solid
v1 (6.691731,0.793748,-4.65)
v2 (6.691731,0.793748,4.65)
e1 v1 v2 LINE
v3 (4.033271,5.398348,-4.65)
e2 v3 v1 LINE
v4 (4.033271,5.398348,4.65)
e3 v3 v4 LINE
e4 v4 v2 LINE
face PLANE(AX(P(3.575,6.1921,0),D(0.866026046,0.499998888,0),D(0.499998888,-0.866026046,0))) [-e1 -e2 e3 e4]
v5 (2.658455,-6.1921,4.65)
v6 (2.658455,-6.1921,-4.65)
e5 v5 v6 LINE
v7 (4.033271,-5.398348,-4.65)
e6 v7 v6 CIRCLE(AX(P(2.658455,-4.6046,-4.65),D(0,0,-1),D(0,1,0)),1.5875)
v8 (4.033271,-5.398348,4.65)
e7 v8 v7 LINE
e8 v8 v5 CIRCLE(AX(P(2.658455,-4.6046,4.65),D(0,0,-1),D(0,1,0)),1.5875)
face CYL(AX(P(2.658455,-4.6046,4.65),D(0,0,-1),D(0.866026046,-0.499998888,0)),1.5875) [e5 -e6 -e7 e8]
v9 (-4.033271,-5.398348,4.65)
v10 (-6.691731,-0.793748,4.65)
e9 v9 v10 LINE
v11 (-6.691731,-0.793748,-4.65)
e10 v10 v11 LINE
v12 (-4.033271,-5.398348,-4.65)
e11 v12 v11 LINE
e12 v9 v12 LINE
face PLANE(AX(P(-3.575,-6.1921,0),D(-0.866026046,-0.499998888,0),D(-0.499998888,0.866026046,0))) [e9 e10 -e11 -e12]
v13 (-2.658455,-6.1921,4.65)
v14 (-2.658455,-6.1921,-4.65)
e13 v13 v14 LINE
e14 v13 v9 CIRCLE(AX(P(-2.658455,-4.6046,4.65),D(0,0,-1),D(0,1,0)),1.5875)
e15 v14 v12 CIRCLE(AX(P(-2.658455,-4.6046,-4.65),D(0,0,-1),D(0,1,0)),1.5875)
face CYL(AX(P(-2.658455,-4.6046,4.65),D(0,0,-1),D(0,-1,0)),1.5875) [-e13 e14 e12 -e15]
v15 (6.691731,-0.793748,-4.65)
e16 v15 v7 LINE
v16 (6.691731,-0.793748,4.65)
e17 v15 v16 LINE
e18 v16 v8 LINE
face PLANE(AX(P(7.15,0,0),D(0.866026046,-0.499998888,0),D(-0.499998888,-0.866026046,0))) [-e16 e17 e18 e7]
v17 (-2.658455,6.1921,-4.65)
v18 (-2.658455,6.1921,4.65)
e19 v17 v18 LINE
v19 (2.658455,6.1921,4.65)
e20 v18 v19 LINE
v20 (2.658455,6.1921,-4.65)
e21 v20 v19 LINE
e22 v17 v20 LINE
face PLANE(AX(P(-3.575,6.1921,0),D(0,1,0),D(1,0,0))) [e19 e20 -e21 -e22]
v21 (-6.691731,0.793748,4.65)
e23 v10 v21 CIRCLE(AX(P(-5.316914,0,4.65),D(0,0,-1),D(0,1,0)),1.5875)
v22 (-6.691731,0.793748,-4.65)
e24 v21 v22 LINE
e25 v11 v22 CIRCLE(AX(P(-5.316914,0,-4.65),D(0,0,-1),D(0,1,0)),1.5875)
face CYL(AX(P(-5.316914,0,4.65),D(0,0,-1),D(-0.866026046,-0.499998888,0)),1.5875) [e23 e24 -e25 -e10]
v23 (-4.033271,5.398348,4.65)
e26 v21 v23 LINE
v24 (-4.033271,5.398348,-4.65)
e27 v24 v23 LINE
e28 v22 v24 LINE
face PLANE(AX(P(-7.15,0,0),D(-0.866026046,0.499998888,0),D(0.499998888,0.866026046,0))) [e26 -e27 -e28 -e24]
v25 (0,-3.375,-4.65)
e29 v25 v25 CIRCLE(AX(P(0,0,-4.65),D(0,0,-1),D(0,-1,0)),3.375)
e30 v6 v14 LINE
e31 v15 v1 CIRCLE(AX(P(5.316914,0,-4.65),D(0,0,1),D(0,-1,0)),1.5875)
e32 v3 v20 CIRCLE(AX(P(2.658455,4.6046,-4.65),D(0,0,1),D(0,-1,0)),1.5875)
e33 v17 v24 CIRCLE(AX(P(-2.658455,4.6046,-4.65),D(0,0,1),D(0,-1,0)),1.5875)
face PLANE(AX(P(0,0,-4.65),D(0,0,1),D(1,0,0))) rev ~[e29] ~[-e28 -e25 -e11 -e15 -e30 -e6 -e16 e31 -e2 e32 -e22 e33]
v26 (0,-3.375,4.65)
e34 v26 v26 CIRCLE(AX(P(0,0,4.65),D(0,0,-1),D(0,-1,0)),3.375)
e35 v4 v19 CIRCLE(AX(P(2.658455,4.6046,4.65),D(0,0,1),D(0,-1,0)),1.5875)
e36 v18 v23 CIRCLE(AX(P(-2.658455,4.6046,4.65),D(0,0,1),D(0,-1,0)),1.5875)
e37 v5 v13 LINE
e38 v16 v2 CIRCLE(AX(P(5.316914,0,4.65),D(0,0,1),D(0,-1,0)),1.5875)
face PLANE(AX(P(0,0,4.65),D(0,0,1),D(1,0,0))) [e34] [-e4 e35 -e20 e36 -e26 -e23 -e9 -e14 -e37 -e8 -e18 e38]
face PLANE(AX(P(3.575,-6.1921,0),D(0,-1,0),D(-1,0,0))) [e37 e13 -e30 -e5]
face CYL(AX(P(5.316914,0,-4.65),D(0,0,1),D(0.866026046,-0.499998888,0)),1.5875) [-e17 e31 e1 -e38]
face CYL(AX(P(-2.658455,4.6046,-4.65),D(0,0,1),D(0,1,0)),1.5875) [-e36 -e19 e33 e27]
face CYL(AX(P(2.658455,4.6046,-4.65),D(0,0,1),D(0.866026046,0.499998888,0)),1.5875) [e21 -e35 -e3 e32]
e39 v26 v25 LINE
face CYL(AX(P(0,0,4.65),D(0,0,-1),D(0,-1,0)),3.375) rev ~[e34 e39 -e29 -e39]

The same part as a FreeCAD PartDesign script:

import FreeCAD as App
import Part
import Sketcher
from FreeCAD import Vector
Q = App.Units.Quantity


def edges_at(feature, points):
    """Names of the edges that pass closest to the given points."""
    edges = feature.Shape.Edges
    near = lambda p: min(range(len(edges)), key=lambda i: edges[i].distToShape(Part.Vertex(*p))[0])
    return sorted({f"Edge{near(p) + 1}" for p in points})

doc = App.newDocument("Part")
body = doc.addObject("PartDesign::Body", "Body")

# Sketch on XY plane
sketch1 = body.newObject("Sketcher::SketchObject", "Sketch")
sketch1.AttachmentSupport = (doc.getObject("XY_Plane"), [""])
sketch1.MapMode = "FlatFace"
sketch1.addGeometry([
    Part.LineSegment(Vector(4, -6, 0), Vector(7, 0, 0)),  # 0
    Part.LineSegment(Vector(7, 0, 0), Vector(4, 6, 0)),  # 1
    Part.LineSegment(Vector(4, 6, 0), Vector(-4, 6, 0)),  # 2
    Part.LineSegment(Vector(-4, 6, 0), Vector(-7, 0, 0)),  # 3
    Part.LineSegment(Vector(-7, 0, 0), Vector(-4, -6, 0)),  # 4
    Part.LineSegment(Vector(-4, -6, 0), Vector(4, -6, 0)),  # 5
], False)
sketch1.addConstraint([
    Sketcher.Constraint("Coincident", 0, 2, 1, 1),
    Sketcher.Constraint("Coincident", 1, 2, 2, 1),
    Sketcher.Constraint("Coincident", 2, 2, 3, 1),
    Sketcher.Constraint("Coincident", 3, 2, 4, 1),
    Sketcher.Constraint("Coincident", 4, 2, 5, 1),
    Sketcher.Constraint("Coincident", 5, 2, 0, 1),
    Sketcher.Constraint("Horizontal", 2),
    Sketcher.Constraint("Horizontal", 5),
    Sketcher.Constraint("Symmetric", 0, 2, 3, 2, -1, 1),
    Sketcher.Constraint("Symmetric", 1, 2, 4, 2, -1, 1),
    Sketcher.Constraint("PointOnObject", 0, 2, -1),
    Sketcher.Constraint("Parallel", 0, 3),
    Sketcher.Constraint("Vertical", 2, 2, 4, 2),
    Sketcher.Constraint("Angle", 0, Q("60 deg")),
    Sketcher.Constraint("DistanceX", 3, 2, 0, 2, Q("0.563 in")),
    Sketcher.Constraint("DistanceX", 2, 2, 2, 1, Q("0.2815 in")),
])
pad1 = body.newObject("PartDesign::Pad", "Pad")
pad1.Profile = sketch1
pad1.Length = 9.3
pad1.Midplane = True

# Sketch on XY plane
sketch2 = body.newObject("Sketcher::SketchObject", "Sketch001")
sketch2.AttachmentSupport = (doc.getObject("XY_Plane"), [""])
sketch2.MapMode = "FlatFace"
sketch2.AttachmentOffset = App.Placement(Vector(0, 0, 4.65), App.Rotation())
sketch2.addGeometry(Part.Circle(Vector(0, 0, 0), Vector(0, 0, 1), 3.4), False)
sketch2.addConstraint([
    Sketcher.Constraint("Coincident", 0, 3, -1, 1),
    Sketcher.Constraint("Diameter", 0, 6.75),
])
doc.recompute()
hole = body.newObject("PartDesign::Hole", "Hole")
hole.Profile = sketch2
hole.ThreadType = "None"
hole.Diameter = 6.75
hole.DepthType = "ThroughAll"
doc.recompute()

fillet = body.newObject("PartDesign::Fillet", "Fillet")
fillet.Base = (hole, edges_at(hole, [
    (-3.575, -6.192, 0),
    (-7.15, 0, 0),
    (-3.575, 6.192, 0),
    (3.575, 6.192, 0),
    (7.15, 0, 0),
    (3.575, -6.192, 0),
]))
fillet.Radius = Q("0.0625 in")

doc.recompute()
